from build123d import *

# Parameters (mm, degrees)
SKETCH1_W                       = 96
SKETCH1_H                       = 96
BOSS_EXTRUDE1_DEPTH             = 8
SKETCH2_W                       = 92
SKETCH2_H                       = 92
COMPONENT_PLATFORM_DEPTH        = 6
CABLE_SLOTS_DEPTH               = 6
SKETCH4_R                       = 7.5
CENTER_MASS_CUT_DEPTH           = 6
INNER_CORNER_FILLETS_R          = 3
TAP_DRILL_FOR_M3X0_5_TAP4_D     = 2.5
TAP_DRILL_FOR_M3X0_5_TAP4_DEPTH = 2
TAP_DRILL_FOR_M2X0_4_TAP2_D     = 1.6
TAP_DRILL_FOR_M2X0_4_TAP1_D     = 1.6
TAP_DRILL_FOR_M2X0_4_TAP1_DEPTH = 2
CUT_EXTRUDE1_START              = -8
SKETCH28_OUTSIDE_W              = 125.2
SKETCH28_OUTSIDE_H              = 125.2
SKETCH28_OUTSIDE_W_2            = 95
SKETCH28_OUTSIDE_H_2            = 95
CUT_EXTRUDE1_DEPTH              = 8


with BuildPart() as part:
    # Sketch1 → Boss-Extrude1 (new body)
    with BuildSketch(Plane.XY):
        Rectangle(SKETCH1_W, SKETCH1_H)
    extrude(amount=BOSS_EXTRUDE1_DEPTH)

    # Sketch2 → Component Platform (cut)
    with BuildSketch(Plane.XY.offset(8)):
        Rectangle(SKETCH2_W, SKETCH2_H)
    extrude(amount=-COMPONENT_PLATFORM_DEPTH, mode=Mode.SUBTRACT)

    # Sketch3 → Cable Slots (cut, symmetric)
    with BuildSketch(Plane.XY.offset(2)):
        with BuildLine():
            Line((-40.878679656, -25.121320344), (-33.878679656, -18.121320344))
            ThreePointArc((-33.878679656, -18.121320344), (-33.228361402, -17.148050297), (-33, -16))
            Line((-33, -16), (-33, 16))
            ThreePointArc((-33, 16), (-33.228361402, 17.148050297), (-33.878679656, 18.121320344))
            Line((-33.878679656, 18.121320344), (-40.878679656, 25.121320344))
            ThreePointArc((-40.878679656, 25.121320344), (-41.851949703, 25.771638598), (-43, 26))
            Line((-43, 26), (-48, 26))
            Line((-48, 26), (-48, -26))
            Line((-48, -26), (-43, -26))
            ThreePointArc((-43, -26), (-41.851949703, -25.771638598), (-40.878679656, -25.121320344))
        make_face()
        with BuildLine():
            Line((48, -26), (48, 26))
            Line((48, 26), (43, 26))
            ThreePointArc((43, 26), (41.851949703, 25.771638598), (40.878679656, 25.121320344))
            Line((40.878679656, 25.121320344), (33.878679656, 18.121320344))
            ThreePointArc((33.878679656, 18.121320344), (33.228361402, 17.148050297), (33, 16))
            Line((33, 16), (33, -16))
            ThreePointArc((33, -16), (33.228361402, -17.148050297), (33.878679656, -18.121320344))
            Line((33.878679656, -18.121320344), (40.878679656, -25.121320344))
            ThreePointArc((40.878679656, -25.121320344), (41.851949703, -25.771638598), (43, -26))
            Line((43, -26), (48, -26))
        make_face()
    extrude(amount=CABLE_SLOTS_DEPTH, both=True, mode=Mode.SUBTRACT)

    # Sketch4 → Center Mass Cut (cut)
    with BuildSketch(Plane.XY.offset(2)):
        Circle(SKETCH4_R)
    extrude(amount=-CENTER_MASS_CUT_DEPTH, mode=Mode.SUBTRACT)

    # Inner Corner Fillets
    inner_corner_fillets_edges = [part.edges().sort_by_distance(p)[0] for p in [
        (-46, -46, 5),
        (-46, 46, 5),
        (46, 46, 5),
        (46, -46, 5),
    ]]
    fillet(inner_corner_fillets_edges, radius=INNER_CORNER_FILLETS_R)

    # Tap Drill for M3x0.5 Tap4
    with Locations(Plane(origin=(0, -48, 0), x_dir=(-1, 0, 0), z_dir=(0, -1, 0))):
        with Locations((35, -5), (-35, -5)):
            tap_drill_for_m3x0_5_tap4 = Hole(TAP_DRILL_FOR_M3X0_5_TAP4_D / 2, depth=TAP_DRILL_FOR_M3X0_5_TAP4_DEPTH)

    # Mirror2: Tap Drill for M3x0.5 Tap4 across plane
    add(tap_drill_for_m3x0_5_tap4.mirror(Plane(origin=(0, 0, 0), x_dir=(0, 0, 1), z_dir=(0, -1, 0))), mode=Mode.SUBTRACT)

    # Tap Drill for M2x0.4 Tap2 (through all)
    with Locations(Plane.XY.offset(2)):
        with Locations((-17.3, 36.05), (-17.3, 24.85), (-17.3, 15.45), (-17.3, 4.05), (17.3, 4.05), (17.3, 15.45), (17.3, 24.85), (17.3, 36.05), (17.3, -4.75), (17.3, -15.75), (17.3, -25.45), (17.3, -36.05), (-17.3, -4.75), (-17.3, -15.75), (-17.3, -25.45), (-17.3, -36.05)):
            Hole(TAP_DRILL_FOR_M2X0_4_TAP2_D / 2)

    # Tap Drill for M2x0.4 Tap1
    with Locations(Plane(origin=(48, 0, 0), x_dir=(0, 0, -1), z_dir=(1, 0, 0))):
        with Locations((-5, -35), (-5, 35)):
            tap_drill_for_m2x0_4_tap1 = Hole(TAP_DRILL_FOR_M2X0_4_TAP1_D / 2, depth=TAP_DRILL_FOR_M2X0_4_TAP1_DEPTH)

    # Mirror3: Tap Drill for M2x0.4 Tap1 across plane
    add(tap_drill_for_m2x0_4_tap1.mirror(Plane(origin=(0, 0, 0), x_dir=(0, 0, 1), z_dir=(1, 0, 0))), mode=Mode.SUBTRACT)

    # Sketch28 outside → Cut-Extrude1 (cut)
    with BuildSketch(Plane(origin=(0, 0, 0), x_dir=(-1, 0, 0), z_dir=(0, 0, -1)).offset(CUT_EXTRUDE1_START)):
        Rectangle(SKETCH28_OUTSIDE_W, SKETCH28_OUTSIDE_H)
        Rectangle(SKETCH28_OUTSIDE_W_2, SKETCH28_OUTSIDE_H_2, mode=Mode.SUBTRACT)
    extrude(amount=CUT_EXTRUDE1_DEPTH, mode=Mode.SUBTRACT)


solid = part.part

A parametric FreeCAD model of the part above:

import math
import FreeCAD as App
import Part
import Sketcher
Q = App.Units.Quantity


def edges_at(feature, points):
    """Names of the edges that pass closest to the given points."""
    edges = feature.Shape.Edges
    near = lambda p: min(range(len(edges)), key=lambda i: edges[i].distToShape(Part.Vertex(*p))[0])
    return sorted({f"Edge{near(p) + 1}" for p in points})


def add_polygon(sketch, points):
    """Adds a closed chain of lines whose ends are joined by coincident constraints."""
    first, n = sketch.GeometryCount, len(points)
    for a, b in zip(points, points[1:] + points[:1]):
        sketch.addGeometry(Part.LineSegment(App.Vector(*a, 0), App.Vector(*b, 0)), False)
    for i in range(n):
        sketch.addConstraint(Sketcher.Constraint("Coincident", first + i, 2, first + (i + 1) % n, 1))

doc = App.newDocument("Part")
body = doc.addObject("PartDesign::Body", "Body")

# Sketch on XY plane
sketch1 = body.newObject("Sketcher::SketchObject", "Sketch")
sketch1.AttachmentSupport = (doc.getObject("XY_Plane"), [""])
sketch1.MapMode = "FlatFace"
add_polygon(sketch1, [(-48, 48), (-48, -48), (48, -48), (48, 48)])  # lines 0-3
sketch1.addConstraint(Sketcher.Constraint("Vertical", 0))
sketch1.addConstraint(Sketcher.Constraint("Horizontal", 1))
sketch1.addConstraint(Sketcher.Constraint("Vertical", 2))
sketch1.addConstraint(Sketcher.Constraint("Horizontal", 3))
sketch1.addConstraint(Sketcher.Constraint("Symmetric", 0, 2, 2, 2, -1, 1))
sketch1.addConstraint(Sketcher.Constraint("Equal", 3, 0))
sketch1.addConstraint(Sketcher.Constraint("DistanceX", 1, 1, 1, 2, Q("96 mm")))
pad1 = body.newObject("PartDesign::Pad", "Pad")
pad1.Profile = sketch1
pad1.Length = 8

# Sketch on XY plane
sketch2 = body.newObject("Sketcher::SketchObject", "Sketch001")
sketch2.AttachmentSupport = (doc.getObject("XY_Plane"), [""])
sketch2.MapMode = "FlatFace"
sketch2.AttachmentOffset = App.Placement(App.Vector(0, 0, 8), App.Rotation())
add_polygon(sketch2, [(-46, 46), (-46, -46), (46, -46), (46, 46)])  # lines 0-3
sketch2.addConstraint(Sketcher.Constraint("Vertical", 0))
sketch2.addConstraint(Sketcher.Constraint("Horizontal", 1))
sketch2.addConstraint(Sketcher.Constraint("Vertical", 2))
sketch2.addConstraint(Sketcher.Constraint("Horizontal", 3))
sketch2.addConstraint(Sketcher.Constraint("Symmetric", 0, 2, 2, 2, -1, 1))
sketch2.addConstraint(Sketcher.Constraint("Equal", 3, 0))
sketch2.addConstraint(Sketcher.Constraint("DistanceX", 1, 1, 1, 2, Q("92 mm")))
pocket1 = body.newObject("PartDesign::Pocket", "Pocket")
pocket1.Profile = sketch2
pocket1.Length = 6

# Sketch on XY plane
sketch3 = body.newObject("Sketcher::SketchObject", "Sketch002")
sketch3.AttachmentSupport = (doc.getObject("XY_Plane"), [""])
sketch3.MapMode = "FlatFace"
sketch3.AttachmentOffset = App.Placement(App.Vector(0, 0, 2), App.Rotation())
sketch3.addGeometry(Part.LineSegment(App.Vector(-40.87868, -25.12132, 0), App.Vector(-33.87868, -18.12132, 0)), False)
sketch3.addGeometry(Part.ArcOfCircle(Part.Circle(App.Vector(-36, -16, 0), App.Vector(0, 0, 1), 3), math.radians(-45), math.radians(0)), False)
sketch3.addGeometry(Part.LineSegment(App.Vector(-33, -16, 0), App.Vector(-33, 16, 0)), False)
sketch3.addGeometry(Part.ArcOfCircle(Part.Circle(App.Vector(-36, 16, 0), App.Vector(0, 0, 1), 3), math.radians(0), math.radians(45)), False)
sketch3.addGeometry(Part.LineSegment(App.Vector(-33.87868, 18.12132, 0), App.Vector(-40.87868, 25.12132, 0)), False)
sketch3.addGeometry(Part.ArcOfCircle(Part.Circle(App.Vector(-43, 23, 0), App.Vector(0, 0, 1), 3), math.radians(45), math.radians(90)), False)
sketch3.addGeometry(Part.LineSegment(App.Vector(-43, 26, 0), App.Vector(-48, 26, 0)), False)
sketch3.addGeometry(Part.LineSegment(App.Vector(-48, 26, 0), App.Vector(-48, -26, 0)), False)
sketch3.addGeometry(Part.LineSegment(App.Vector(-48, -26, 0), App.Vector(-43, -26, 0)), False)
sketch3.addGeometry(Part.ArcOfCircle(Part.Circle(App.Vector(-43, -23, 0), App.Vector(0, 0, 1), 3), math.radians(-90), math.radians(-45)), False)
sketch3.addGeometry(Part.LineSegment(App.Vector(48, -26, 0), App.Vector(48, 26, 0)), False)
sketch3.addGeometry(Part.LineSegment(App.Vector(48, 26, 0), App.Vector(43, 26, 0)), False)
sketch3.addGeometry(Part.ArcOfCircle(Part.Circle(App.Vector(43, 23, 0), App.Vector(0, 0, 1), 3), math.radians(90), math.radians(135)), False)
sketch3.addGeometry(Part.LineSegment(App.Vector(40.87868, 25.12132, 0), App.Vector(33.87868, 18.12132, 0)), False)
sketch3.addGeometry(Part.ArcOfCircle(Part.Circle(App.Vector(36, 16, 0), App.Vector(0, 0, 1), 3), math.radians(135), math.radians(180)), False)
sketch3.addGeometry(Part.LineSegment(App.Vector(33, 16, 0), App.Vector(33, -16, 0)), False)
sketch3.addGeometry(Part.ArcOfCircle(Part.Circle(App.Vector(36, -16, 0), App.Vector(0, 0, 1), 3), math.radians(180), math.radians(225)), False)
sketch3.addGeometry(Part.LineSegment(App.Vector(33.87868, -18.12132, 0), App.Vector(40.87868, -25.12132, 0)), False)
sketch3.addGeometry(Part.ArcOfCircle(Part.Circle(App.Vector(43, -23, 0), App.Vector(0, 0, 1), 3), math.radians(-135), math.radians(-90)), False)
sketch3.addGeometry(Part.LineSegment(App.Vector(43, -26, 0), App.Vector(48, -26, 0)), False)
sketch3.addConstraint(Sketcher.Constraint("Tangent", 0, 2, 1, 1))
sketch3.addConstraint(Sketcher.Constraint("Tangent", 1, 2, 2, 1))
sketch3.addConstraint(Sketcher.Constraint("Tangent", 2, 2, 3, 1))
sketch3.addConstraint(Sketcher.Constraint("Tangent", 3, 2, 4, 1))
sketch3.addConstraint(Sketcher.Constraint("Tangent", 4, 2, 5, 1))
sketch3.addConstraint(Sketcher.Constraint("Tangent", 5, 2, 6, 1))
sketch3.addConstraint(Sketcher.Constraint("Coincident", 6, 2, 7, 1))
sketch3.addConstraint(Sketcher.Constraint("Coincident", 7, 2, 8, 1))
sketch3.addConstraint(Sketcher.Constraint("Tangent", 8, 2, 9, 1))
sketch3.addConstraint(Sketcher.Constraint("Tangent", 9, 2, 0, 1))
sketch3.addConstraint(Sketcher.Constraint("Coincident", 10, 2, 11, 1))
sketch3.addConstraint(Sketcher.Constraint("Tangent", 11, 2, 12, 1))
sketch3.addConstraint(Sketcher.Constraint("Tangent", 12, 2, 13, 1))
sketch3.addConstraint(Sketcher.Constraint("Tangent", 13, 2, 14, 1))
sketch3.addConstraint(Sketcher.Constraint("Tangent", 14, 2, 15, 1))
sketch3.addConstraint(Sketcher.Constraint("Tangent", 15, 2, 16, 1))
sketch3.addConstraint(Sketcher.Constraint("Tangent", 16, 2, 17, 1))
sketch3.addConstraint(Sketcher.Constraint("Tangent", 17, 2, 18, 1))
sketch3.addConstraint(Sketcher.Constraint("Tangent", 18, 2, 19, 1))
sketch3.addConstraint(Sketcher.Constraint("Coincident", 19, 2, 10, 1))
sketch3.addConstraint(Sketcher.Constraint("Vertical", 2))
sketch3.addConstraint(Sketcher.Constraint("Horizontal", 6))
sketch3.addConstraint(Sketcher.Constraint("Vertical", 7))
sketch3.addConstraint(Sketcher.Constraint("Horizontal", 8))
sketch3.addConstraint(Sketcher.Constraint("Vertical", 10))
sketch3.addConstraint(Sketcher.Constraint("Horizontal", 11))
sketch3.addConstraint(Sketcher.Constraint("Vertical", 15))
sketch3.addConstraint(Sketcher.Constraint("Horizontal", 19))
sketch3.addConstraint(Sketcher.Constraint("Equal", 1, 3))
sketch3.addConstraint(Sketcher.Constraint("Equal", 3, 5))
sketch3.addConstraint(Sketcher.Constraint("Equal", 5, 9))
sketch3.addConstraint(Sketcher.Constraint("Equal", 9, 12))
sketch3.addConstraint(Sketcher.Constraint("Equal", 12, 14))
sketch3.addConstraint(Sketcher.Constraint("Equal", 14, 16))
sketch3.addConstraint(Sketcher.Constraint("Equal", 16, 18))
sketch3.addConstraint(Sketcher.Constraint("Symmetric", 9, 3, 12, 3, -1, 1))
sketch3.addConstraint(Sketcher.Constraint("Symmetric", 1, 3, 14, 3, -1, 1))
sketch3.addConstraint(Sketcher.Constraint("Symmetric", 5, 3, 18, 3, -1, 1))
sketch3.addConstraint(Sketcher.Constraint("Symmetric", 5, 3, 12, 3, -2))
sketch3.addConstraint(Sketcher.Constraint("Perpendicular", 0, 4))
sketch3.addConstraint(Sketcher.Constraint("Perpendicular", 13, 17))
sketch3.addConstraint(Sketcher.Constraint("Horizontal", 3, 3, 14, 3))
sketch3.addConstraint(Sketcher.Constraint("Equal", 8, 11))
sketch3.addConstraint(Sketcher.Constraint("Radius", 1, Q("3 mm")))
sketch3.addConstraint(Sketcher.Constraint("DistanceX", 6, 2, 6, 1, Q("5 mm")))
sketch3.addConstraint(Sketcher.Constraint("DistanceY", 2, 1, 2, 2, Q("32 mm")))
sketch3.addConstraint(Sketcher.Constraint("DistanceY", 7, 2, 7, 1, Q("52 mm")))
sketch3.addConstraint(Sketcher.Constraint("DistanceX", 1, 3, -1, 1, Q("36 mm")))
pocket2 = body.newObject("PartDesign::Pocket", "Pocket001")
pocket2.Profile = sketch3
pocket2.Length = 12
pocket2.Midplane = True

# Sketch on XY plane
sketch4 = body.newObject("Sketcher::SketchObject", "Sketch003")
sketch4.AttachmentSupport = (doc.getObject("XY_Plane"), [""])
sketch4.MapMode = "FlatFace"
sketch4.AttachmentOffset = App.Placement(App.Vector(0, 0, 2), App.Rotation())
sketch4.addGeometry(Part.Circle(App.Vector(0, 0, 0), App.Vector(0, 0, 1), 7.5), False)
sketch4.addConstraint(Sketcher.Constraint("Coincident", 0, 3, -1, 1))
sketch4.addConstraint(Sketcher.Constraint("Diameter", 0, Q("15 mm")))
pocket3 = body.newObject("PartDesign::Pocket", "Pocket002")
pocket3.Profile = sketch4
pocket3.Length = 6
doc.recompute()

fillet = body.newObject("PartDesign::Fillet", "Fillet")
fillet.Base = (pocket3, edges_at(pocket3, [
    (-46, -46, 5),
    (-46, 46, 5),
    (46, 46, 5),
    (46, -46, 5),
]))
fillet.Radius = 3

# Sketch on XZ plane
sketch5 = body.newObject("Sketcher::SketchObject", "Sketch004")
sketch5.AttachmentSupport = (doc.getObject("XZ_Plane"), [""])
sketch5.MapMode = "FlatFace"
sketch5.AttachmentOffset = App.Placement(App.Vector(0, 0, 48), App.Rotation())
sketch5.addGeometry(Part.Circle(App.Vector(-35, 5, 0), App.Vector(0, 0, 1), 1.25), False)
sketch5.addGeometry(Part.Circle(App.Vector(35, 5, 0), App.Vector(0, 0, 1), 1.25), False)
sketch5.addConstraint(Sketcher.Constraint("Equal", 0, 1))
sketch5.addConstraint(Sketcher.Constraint("Symmetric", 0, 3, 1, 3, -2))
sketch5.addConstraint(Sketcher.Constraint("Diameter", 0, Q("2.5 mm")))
sketch5.addConstraint(Sketcher.Constraint("DistanceX", 0, 3, -1, 1, Q("35 mm")))
sketch5.addConstraint(Sketcher.Constraint("DistanceY", -1, 1, 0, 3, Q("5 mm")))
doc.recompute()
hole = body.newObject("PartDesign::Hole", "Hole")
hole.Profile = sketch5
hole.ThreadType = "None"
hole.Diameter = 2.5
hole.DepthType = "Dimension"
hole.Depth = 2
hole.DrillPoint = "Flat"
doc.recompute()

mirrored = body.newObject("PartDesign::Mirrored", "Mirrored")
mirrored.Originals = [hole]
mirrored.MirrorPlane = (doc.getObject("XZ_Plane"), [""])
body.Tip = mirrored

# Sketch on XY plane
sketch6 = body.newObject("Sketcher::SketchObject", "Sketch005")
sketch6.AttachmentSupport = (doc.getObject("XY_Plane"), [""])
sketch6.MapMode = "FlatFace"
sketch6.AttachmentOffset = App.Placement(App.Vector(0, 0, 2), App.Rotation())
sketch6.addGeometry(Part.Circle(App.Vector(-17.3, 36.05, 0), App.Vector(0, 0, 1), 0.8), False)
sketch6.addGeometry(Part.Circle(App.Vector(-17.3, 24.85, 0), App.Vector(0, 0, 1), 0.8), False)
sketch6.addGeometry(Part.Circle(App.Vector(-17.3, 15.45, 0), App.Vector(0, 0, 1), 0.8), False)
sketch6.addGeometry(Part.Circle(App.Vector(-17.3, 4.05, 0), App.Vector(0, 0, 1), 0.8), False)
sketch6.addGeometry(Part.Circle(App.Vector(17.3, 4.05, 0), App.Vector(0, 0, 1), 0.8), False)
sketch6.addGeometry(Part.Circle(App.Vector(17.3, 15.45, 0), App.Vector(0, 0, 1), 0.8), False)
sketch6.addGeometry(Part.Circle(App.Vector(17.3, 24.85, 0), App.Vector(0, 0, 1), 0.8), False)
sketch6.addGeometry(Part.Circle(App.Vector(17.3, 36.05, 0), App.Vector(0, 0, 1), 0.8), False)
sketch6.addGeometry(Part.Circle(App.Vector(17.3, -4.75, 0), App.Vector(0, 0, 1), 0.8), False)
sketch6.addGeometry(Part.Circle(App.Vector(17.3, -15.75, 0), App.Vector(0, 0, 1), 0.8), False)
sketch6.addGeometry(Part.Circle(App.Vector(17.3, -25.45, 0), App.Vector(0, 0, 1), 0.8), False)
sketch6.addGeometry(Part.Circle(App.Vector(17.3, -36.05, 0), App.Vector(0, 0, 1), 0.8), False)
sketch6.addGeometry(Part.Circle(App.Vector(-17.3, -4.75, 0), App.Vector(0, 0, 1), 0.8), False)
sketch6.addGeometry(Part.Circle(App.Vector(-17.3, -15.75, 0), App.Vector(0, 0, 1), 0.8), False)
sketch6.addGeometry(Part.Circle(App.Vector(-17.3, -25.45, 0), App.Vector(0, 0, 1), 0.8), False)
sketch6.addGeometry(Part.Circle(App.Vector(-17.3, -36.05, 0), App.Vector(0, 0, 1), 0.8), False)
sketch6.addConstraint(Sketcher.Constraint("Equal", 0, 1))
sketch6.addConstraint(Sketcher.Constraint("Equal", 1, 2))
sketch6.addConstraint(Sketcher.Constraint("Equal", 2, 3))
sketch6.addConstraint(Sketcher.Constraint("Equal", 3, 4))
sketch6.addConstraint(Sketcher.Constraint("Equal", 4, 5))
sketch6.addConstraint(Sketcher.Constraint("Equal", 5, 6))
sketch6.addConstraint(Sketcher.Constraint("Equal", 6, 7))
sketch6.addConstraint(Sketcher.Constraint("Equal", 7, 8))
sketch6.addConstraint(Sketcher.Constraint("Equal", 8, 9))
sketch6.addConstraint(Sketcher.Constraint("Equal", 9, 10))
sketch6.addConstraint(Sketcher.Constraint("Equal", 10, 11))
sketch6.addConstraint(Sketcher.Constraint("Equal", 11, 12))
sketch6.addConstraint(Sketcher.Constraint("Equal", 12, 13))
sketch6.addConstraint(Sketcher.Constraint("Equal", 13, 14))
sketch6.addConstraint(Sketcher.Constraint("Equal", 14, 15))
sketch6.addConstraint(Sketcher.Constraint("Symmetric", 0, 3, 11, 3, -1, 1))
sketch6.addConstraint(Sketcher.Constraint("Symmetric", 7, 3, 15, 3, -1, 1))
sketch6.addConstraint(Sketcher.Constraint("Symmetric", 3, 3, 4, 3, -2))
sketch6.addConstraint(Sketcher.Constraint("Symmetric", 2, 3, 5, 3, -2))
sketch6.addConstraint(Sketcher.Constraint("Symmetric", 1, 3, 6, 3, -2))
sketch6.addConstraint(Sketcher.Constraint("Symmetric", 0, 3, 7, 3, -2))
sketch6.addConstraint(Sketcher.Constraint("Symmetric", 8, 3, 12, 3, -2))
sketch6.addConstraint(Sketcher.Constraint("Symmetric", 9, 3, 13, 3, -2))
sketch6.addConstraint(Sketcher.Constraint("Symmetric", 10, 3, 14, 3, -2))
sketch6.addConstraint(Sketcher.Constraint("Vertical", 0, 3, 1, 3))
sketch6.addConstraint(Sketcher.Constraint("Vertical", 1, 3, 2, 3))
sketch6.addConstraint(Sketcher.Constraint("Vertical", 2, 3, 3, 3))
sketch6.addConstraint(Sketcher.Constraint("Vertical", 7, 3, 8, 3))
sketch6.addConstraint(Sketcher.Constraint("Vertical", 8, 3, 9, 3))
sketch6.addConstraint(Sketcher.Constraint("Vertical", 9, 3, 10, 3))
sketch6.addConstraint(Sketcher.Constraint("Diameter", 0, Q("1.6 mm")))
sketch6.addConstraint(Sketcher.Constraint("DistanceY", 3, 3, 0, 3, Q("32 mm")))
sketch6.addConstraint(Sketcher.Constraint("DistanceY", 9, 3, 8, 3, Q("11 mm")))
sketch6.addConstraint(Sketcher.Constraint("DistanceX", 0, 3, -1, 1, Q("17.3 mm")))
sketch6.addConstraint(Sketcher.Constraint("DistanceY", 1, 3, 0, 3, Q("11.2 mm")))
sketch6.addConstraint(Sketcher.Constraint("DistanceY", 2, 3, 1, 3, Q("9.4 mm")))
sketch6.addConstraint(Sketcher.Constraint("DistanceY", 8, 3, 4, 3, Q("8.8 mm")))
sketch6.addConstraint(Sketcher.Constraint("DistanceY", 10, 3, 9, 3, Q("9.7 mm")))
sketch6.addConstraint(Sketcher.Constraint("DistanceY", 11, 3, 10, 3, Q("10.6 mm")))
doc.recompute()
hole2 = body.newObject("PartDesign::Hole", "Hole001")
hole2.Profile = sketch6
hole2.ThreadType = "None"
hole2.Diameter = 1.6
hole2.DepthType = "ThroughAll"

# Sketch on YZ plane
sketch7 = body.newObject("Sketcher::SketchObject", "Sketch006")
sketch7.AttachmentSupport = (doc.getObject("YZ_Plane"), [""])
sketch7.MapMode = "FlatFace"
sketch7.AttachmentOffset = App.Placement(App.Vector(0, 0, 48), App.Rotation())
sketch7.addGeometry(Part.Circle(App.Vector(-35, 5, 0), App.Vector(0, 0, 1), 0.8), False)
sketch7.addGeometry(Part.Circle(App.Vector(35, 5, 0), App.Vector(0, 0, 1), 0.8), False)
sketch7.addConstraint(Sketcher.Constraint("Equal", 0, 1))
sketch7.addConstraint(Sketcher.Constraint("Symmetric", 0, 3, 1, 3, -2))
sketch7.addConstraint(Sketcher.Constraint("Diameter", 0, Q("1.6 mm")))
sketch7.addConstraint(Sketcher.Constraint("DistanceX", 0, 3, -1, 1, Q("35 mm")))
sketch7.addConstraint(Sketcher.Constraint("DistanceY", -1, 1, 0, 3, Q("5 mm")))
doc.recompute()
hole3 = body.newObject("PartDesign::Hole", "Hole002")
hole3.Profile = sketch7
hole3.ThreadType = "None"
hole3.Diameter = 1.6
hole3.DepthType = "Dimension"
hole3.Depth = 2
hole3.DrillPoint = "Flat"
doc.recompute()

mirrored2 = body.newObject("PartDesign::Mirrored", "Mirrored001")
mirrored2.Originals = [hole3]
mirrored2.MirrorPlane = (doc.getObject("YZ_Plane"), [""])
body.Tip = mirrored2

# Sketch on XY plane
sketch8 = body.newObject("Sketcher::SketchObject", "Sketch007")
sketch8.AttachmentSupport = (doc.getObject("XY_Plane"), [""])
sketch8.MapMode = "FlatFace"
sketch8.AttachmentOffset = App.Placement(App.Vector(0, 0, 8), App.Rotation())
add_polygon(sketch8, [(62.6, 62.6), (62.6, -62.6), (-62.6, -62.6), (-62.6, 62.6)])  # lines 0-3
add_polygon(sketch8, [(-47.5, -47.5), (47.5, -47.5), (47.5, 47.5), (-47.5, 47.5)])  # lines 4-7
sketch8.addConstraint(Sketcher.Constraint("Vertical", 0))
sketch8.addConstraint(Sketcher.Constraint("Horizontal", 1))
sketch8.addConstraint(Sketcher.Constraint("Vertical", 2))
sketch8.addConstraint(Sketcher.Constraint("Horizontal", 3))
sketch8.addConstraint(Sketcher.Constraint("Horizontal", 4))
sketch8.addConstraint(Sketcher.Constraint("Vertical", 5))
sketch8.addConstraint(Sketcher.Constraint("Horizontal", 6))
sketch8.addConstraint(Sketcher.Constraint("Vertical", 7))
sketch8.addConstraint(Sketcher.Constraint("Symmetric", 0, 2, 2, 2, -1, 1))
sketch8.addConstraint(Sketcher.Constraint("Symmetric", 4, 2, 6, 2, -1, 1))
sketch8.addConstraint(Sketcher.Constraint("Equal", 3, 0))
sketch8.addConstraint(Sketcher.Constraint("Equal", 6, 5))
sketch8.addConstraint(Sketcher.Constraint("DistanceX", 4, 1, 4, 2, Q("95 mm")))
sketch8.addConstraint(Sketcher.Constraint("DistanceX", 1, 2, 1, 1, Q("125.2 mm")))
pocket4 = body.newObject("PartDesign::Pocket", "Pocket003")
pocket4.Profile = sketch8
pocket4.Length = 8

doc.recompute()
